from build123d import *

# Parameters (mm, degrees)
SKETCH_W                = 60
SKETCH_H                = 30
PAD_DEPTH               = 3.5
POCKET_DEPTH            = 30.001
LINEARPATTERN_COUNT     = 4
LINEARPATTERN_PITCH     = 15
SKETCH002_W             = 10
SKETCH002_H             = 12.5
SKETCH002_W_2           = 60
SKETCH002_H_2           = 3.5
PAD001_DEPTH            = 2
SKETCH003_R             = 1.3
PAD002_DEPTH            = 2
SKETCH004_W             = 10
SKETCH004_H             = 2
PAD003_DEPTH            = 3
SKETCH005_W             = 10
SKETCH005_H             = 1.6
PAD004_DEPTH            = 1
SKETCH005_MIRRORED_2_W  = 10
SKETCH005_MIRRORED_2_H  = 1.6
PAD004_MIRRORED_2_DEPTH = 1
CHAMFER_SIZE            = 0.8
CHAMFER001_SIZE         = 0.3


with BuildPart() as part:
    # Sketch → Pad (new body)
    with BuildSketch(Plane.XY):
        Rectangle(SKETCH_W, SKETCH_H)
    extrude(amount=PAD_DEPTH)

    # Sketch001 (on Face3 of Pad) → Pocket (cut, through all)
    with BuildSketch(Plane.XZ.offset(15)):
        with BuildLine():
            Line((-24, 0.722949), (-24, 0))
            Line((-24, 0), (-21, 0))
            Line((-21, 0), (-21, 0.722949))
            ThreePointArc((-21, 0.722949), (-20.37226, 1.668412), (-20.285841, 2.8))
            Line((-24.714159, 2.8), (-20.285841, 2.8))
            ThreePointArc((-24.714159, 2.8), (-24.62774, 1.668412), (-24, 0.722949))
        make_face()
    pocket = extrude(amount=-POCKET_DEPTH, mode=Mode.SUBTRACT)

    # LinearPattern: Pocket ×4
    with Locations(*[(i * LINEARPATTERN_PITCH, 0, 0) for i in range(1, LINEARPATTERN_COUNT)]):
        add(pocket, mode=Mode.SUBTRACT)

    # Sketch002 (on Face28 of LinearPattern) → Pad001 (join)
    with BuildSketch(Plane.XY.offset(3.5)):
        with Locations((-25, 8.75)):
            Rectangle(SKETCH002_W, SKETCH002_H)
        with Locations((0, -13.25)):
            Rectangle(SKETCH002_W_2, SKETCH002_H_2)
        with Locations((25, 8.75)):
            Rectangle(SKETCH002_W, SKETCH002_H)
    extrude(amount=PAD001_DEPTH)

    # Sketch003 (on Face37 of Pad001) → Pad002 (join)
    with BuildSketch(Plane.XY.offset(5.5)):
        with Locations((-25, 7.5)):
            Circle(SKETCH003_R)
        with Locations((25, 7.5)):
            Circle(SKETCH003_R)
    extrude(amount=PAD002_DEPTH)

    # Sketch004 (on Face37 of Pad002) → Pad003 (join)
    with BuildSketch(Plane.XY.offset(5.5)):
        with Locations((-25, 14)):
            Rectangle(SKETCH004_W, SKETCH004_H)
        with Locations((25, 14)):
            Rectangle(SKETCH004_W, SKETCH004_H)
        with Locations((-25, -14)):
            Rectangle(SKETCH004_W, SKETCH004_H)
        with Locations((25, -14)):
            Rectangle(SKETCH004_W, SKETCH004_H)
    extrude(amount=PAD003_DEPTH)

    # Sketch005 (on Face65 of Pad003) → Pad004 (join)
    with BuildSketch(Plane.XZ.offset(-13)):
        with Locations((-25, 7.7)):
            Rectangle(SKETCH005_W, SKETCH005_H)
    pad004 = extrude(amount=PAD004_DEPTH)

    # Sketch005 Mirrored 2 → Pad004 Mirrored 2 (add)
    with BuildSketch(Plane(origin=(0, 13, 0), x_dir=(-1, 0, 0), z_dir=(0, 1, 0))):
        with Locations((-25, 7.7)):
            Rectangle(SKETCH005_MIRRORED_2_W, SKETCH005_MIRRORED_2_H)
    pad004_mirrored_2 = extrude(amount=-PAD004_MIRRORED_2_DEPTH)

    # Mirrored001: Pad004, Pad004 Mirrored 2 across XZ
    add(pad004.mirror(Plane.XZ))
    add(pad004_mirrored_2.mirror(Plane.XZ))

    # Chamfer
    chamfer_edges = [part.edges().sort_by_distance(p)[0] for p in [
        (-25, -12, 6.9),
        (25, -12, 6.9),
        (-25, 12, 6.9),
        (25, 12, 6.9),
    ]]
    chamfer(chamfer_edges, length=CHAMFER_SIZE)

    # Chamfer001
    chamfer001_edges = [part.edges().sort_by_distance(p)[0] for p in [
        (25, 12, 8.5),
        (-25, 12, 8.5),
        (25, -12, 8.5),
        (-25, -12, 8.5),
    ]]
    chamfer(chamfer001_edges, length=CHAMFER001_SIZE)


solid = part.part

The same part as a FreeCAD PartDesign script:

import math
import FreeCAD as App
import Part
import Sketcher

V = App.Vector
Q = App.Units.Quantity


def edges_at(feature, points):
    """Names of the edges that pass closest to the given points."""
    edges = feature.Shape.Edges
    near = lambda p: min(range(len(edges)), key=lambda i: edges[i].distToShape(Part.Vertex(*p))[0])
    return sorted({f"Edge{near(p) + 1}" for p in points})

doc = App.newDocument("Part")
body = doc.addObject("PartDesign::Body", "Body")

# Sketch on XY plane
sketch1 = body.newObject("Sketcher::SketchObject", "Sketch")
sketch1.AttachmentSupport = (doc.getObject("XY_Plane"), [""])
sketch1.MapMode = "FlatFace"
sketch1.addGeometry(Part.LineSegment(V(-30, 15, 0), V(-30, -15, 0)), False)
sketch1.addGeometry(Part.LineSegment(V(-30, -15, 0), V(30, -15, 0)), False)
sketch1.addGeometry(Part.LineSegment(V(30, -15, 0), V(30, 15, 0)), False)
sketch1.addGeometry(Part.LineSegment(V(30, 15, 0), V(-30, 15, 0)), False)
sketch1.addConstraint(Sketcher.Constraint("Coincident", 0, 2, 1, 1))
sketch1.addConstraint(Sketcher.Constraint("Coincident", 1, 2, 2, 1))
sketch1.addConstraint(Sketcher.Constraint("Coincident", 2, 2, 3, 1))
sketch1.addConstraint(Sketcher.Constraint("Coincident", 3, 2, 0, 1))
sketch1.addConstraint(Sketcher.Constraint("Vertical", 0))
sketch1.addConstraint(Sketcher.Constraint("Horizontal", 1))
sketch1.addConstraint(Sketcher.Constraint("Vertical", 2))
sketch1.addConstraint(Sketcher.Constraint("Horizontal", 3))
sketch1.addConstraint(Sketcher.Constraint("Symmetric", 0, 2, 2, 2, -1, 1))
sketch1.addConstraint(Sketcher.Constraint("DistanceX", 1, 1, 1, 2, Q("60 mm")))
sketch1.addConstraint(Sketcher.Constraint("DistanceY", 0, 2, 0, 1, Q("30 mm")))
pad1 = body.newObject("PartDesign::Pad", "Pad")
pad1.Profile = sketch1
pad1.Length = 3.5

# Sketch on XZ plane
sketch2 = body.newObject("Sketcher::SketchObject", "Sketch001")
sketch2.AttachmentSupport = (doc.getObject("XZ_Plane"), [""])
sketch2.MapMode = "FlatFace"
sketch2.AttachmentOffset = App.Placement(V(0, 0, 15), App.Rotation())
sketch2.addGeometry(Part.LineSegment(V(-24, 0.7, 0), V(-24, 0, 0)), False)
sketch2.addGeometry(Part.LineSegment(V(-24, 0, 0), V(-21, 0, 0)), False)
sketch2.addGeometry(Part.LineSegment(V(-21, 0, 0), V(-21, 0.7, 0)), False)
sketch2.addGeometry(Part.ArcOfCircle(Part.Circle(V(-22.5, 2.4, 0), V(0, 0, 1), 2.3), math.radians(-48), math.radians(10)), False)
sketch2.addGeometry(Part.LineSegment(V(-20.3, 2.8, 0), V(-24.7, 2.8, 0)), False)
sketch2.addGeometry(Part.ArcOfCircle(Part.Circle(V(-22.5, 2.4, 0), V(0, 0, 1), 2.3), math.radians(170), math.radians(228)), False)
sketch2.addConstraint(Sketcher.Constraint("Coincident", 0, 2, 1, 1))
sketch2.addConstraint(Sketcher.Constraint("Coincident", 1, 2, 2, 1))
sketch2.addConstraint(Sketcher.Constraint("Coincident", 2, 2, 3, 1))
sketch2.addConstraint(Sketcher.Constraint("Coincident", 3, 2, 4, 1))
sketch2.addConstraint(Sketcher.Constraint("Coincident", 4, 2, 5, 1))
sketch2.addConstraint(Sketcher.Constraint("Coincident", 5, 2, 0, 1))
sketch2.addConstraint(Sketcher.Constraint("Vertical", 0))
sketch2.addConstraint(Sketcher.Constraint("Horizontal", 1))
sketch2.addConstraint(Sketcher.Constraint("Vertical", 2))
sketch2.addConstraint(Sketcher.Constraint("Horizontal", 4))
sketch2.addConstraint(Sketcher.Constraint("Coincident", 5, 3, 3, 3))
sketch2.addConstraint(Sketcher.Constraint("Equal", 3, 5))
sketch2.addConstraint(Sketcher.Constraint("PointOnObject", 0, 2, -1))
sketch2.addConstraint(Sketcher.Constraint("Horizontal", 2, 2, 5, 2))
sketch2.addConstraint(Sketcher.Constraint("DistanceX", 1, 1, 1, 2, Q("3 mm")))
sketch2.addConstraint(Sketcher.Constraint("DistanceX", 0, 2, -1, 1, Q("24 mm")))
sketch2.addConstraint(Sketcher.Constraint("DistanceY", -1, 1, 3, 3, Q("2.400001 mm")))
sketch2.addConstraint(Sketcher.Constraint("DistanceY", -1, 1, 3, 2, Q("2.8 mm")))
sketch2.addConstraint(Sketcher.Constraint("Radius", 3, Q("2.250002 mm")))
pocket1 = body.newObject("PartDesign::Pocket", "Pocket")
pocket1.Profile = sketch2
pocket1.Type = "ThroughAll"
doc.recompute()

linearpattern = body.newObject("PartDesign::LinearPattern", "LinearPattern")
linearpattern.Originals = [pocket1]
linearpattern.Direction = (doc.getObject("X_Axis"), [""])
linearpattern.Mode = "offset"
linearpattern.Offset = 15
linearpattern.Occurrences = 4
body.Tip = linearpattern

# Sketch on XY plane
sketch3 = body.newObject("Sketcher::SketchObject", "Sketch002")
sketch3.AttachmentSupport = (doc.getObject("XY_Plane"), [""])
sketch3.MapMode = "FlatFace"
sketch3.AttachmentOffset = App.Placement(V(0, 0, 3.5), App.Rotation())
sketch3.addGeometry(Part.LineSegment(V(-30, 15, 0), V(-30, 2.5, 0)), False)
sketch3.addGeometry(Part.LineSegment(V(-30, 2.5, 0), V(-20, 2.5, 0)), False)
sketch3.addGeometry(Part.LineSegment(V(-20, 2.5, 0), V(-20, 15, 0)), False)
sketch3.addGeometry(Part.LineSegment(V(-20, 15, 0), V(-30, 15, 0)), False)
sketch3.addGeometry(Part.LineSegment(V(-30, -11.5, 0), V(-30, -15, 0)), False)
sketch3.addGeometry(Part.LineSegment(V(-30, -15, 0), V(30, -15, 0)), False)
sketch3.addGeometry(Part.LineSegment(V(30, -15, 0), V(30, -11.5, 0)), False)
sketch3.addGeometry(Part.LineSegment(V(30, -11.5, 0), V(-30, -11.5, 0)), False)
sketch3.addGeometry(Part.LineSegment(V(20, 15, 0), V(20, 2.5, 0)), False)
sketch3.addGeometry(Part.LineSegment(V(20, 2.5, 0), V(30, 2.5, 0)), False)
sketch3.addGeometry(Part.LineSegment(V(30, 2.5, 0), V(30, 15, 0)), False)
sketch3.addGeometry(Part.LineSegment(V(30, 15, 0), V(20, 15, 0)), False)
sketch3.addConstraint(Sketcher.Constraint("Coincident", 0, 2, 1, 1))
sketch3.addConstraint(Sketcher.Constraint("Coincident", 1, 2, 2, 1))
sketch3.addConstraint(Sketcher.Constraint("Coincident", 2, 2, 3, 1))
sketch3.addConstraint(Sketcher.Constraint("Coincident", 3, 2, 0, 1))
sketch3.addConstraint(Sketcher.Constraint("Coincident", 4, 2, 5, 1))
sketch3.addConstraint(Sketcher.Constraint("Coincident", 5, 2, 6, 1))
sketch3.addConstraint(Sketcher.Constraint("Coincident", 6, 2, 7, 1))
sketch3.addConstraint(Sketcher.Constraint("Coincident", 7, 2, 4, 1))
sketch3.addConstraint(Sketcher.Constraint("Coincident", 8, 2, 9, 1))
sketch3.addConstraint(Sketcher.Constraint("Coincident", 9, 2, 10, 1))
sketch3.addConstraint(Sketcher.Constraint("Coincident", 10, 2, 11, 1))
sketch3.addConstraint(Sketcher.Constraint("Coincident", 11, 2, 8, 1))
sketch3.addConstraint(Sketcher.Constraint("Vertical", 0))
sketch3.addConstraint(Sketcher.Constraint("Horizontal", 1))
sketch3.addConstraint(Sketcher.Constraint("Vertical", 2))
sketch3.addConstraint(Sketcher.Constraint("Horizontal", 3))
sketch3.addConstraint(Sketcher.Constraint("Vertical", 4))
sketch3.addConstraint(Sketcher.Constraint("Horizontal", 5))
sketch3.addConstraint(Sketcher.Constraint("Vertical", 6))
sketch3.addConstraint(Sketcher.Constraint("Horizontal", 7))
sketch3.addConstraint(Sketcher.Constraint("Vertical", 8))
sketch3.addConstraint(Sketcher.Constraint("Horizontal", 9))
sketch3.addConstraint(Sketcher.Constraint("Vertical", 10))
sketch3.addConstraint(Sketcher.Constraint("Horizontal", 11))
sketch3.addConstraint(Sketcher.Constraint("Symmetric", 3, 2, 5, 2, -1, 1))
sketch3.addConstraint(Sketcher.Constraint("Symmetric", 4, 2, 10, 2, -1, 1))
sketch3.addConstraint(Sketcher.Constraint("Symmetric", 1, 2, 8, 2, -2))
sketch3.addConstraint(Sketcher.Constraint("Vertical", 3, 2, 4, 2))
sketch3.addConstraint(Sketcher.Constraint("DistanceX", 1, 1, 1, 2, Q("10 mm")))
sketch3.addConstraint(Sketcher.Constraint("DistanceX", 5, 1, 5, 2, Q("60 mm")))
sketch3.addConstraint(Sketcher.Constraint("DistanceY", 0, 2, 0, 1, Q("12.5 mm")))
sketch3.addConstraint(Sketcher.Constraint("DistanceY", 4, 2, 4, 1, Q("3.5 mm")))
sketch3.addConstraint(Sketcher.Constraint("DistanceY", -1, 1, 2, 2, Q("15 mm")))
pad2 = body.newObject("PartDesign::Pad", "Pad001")
pad2.Profile = sketch3
pad2.Length = 2

# Sketch on XY plane
sketch4 = body.newObject("Sketcher::SketchObject", "Sketch003")
sketch4.AttachmentSupport = (doc.getObject("XY_Plane"), [""])
sketch4.MapMode = "FlatFace"
sketch4.AttachmentOffset = App.Placement(V(0, 0, 5.5), App.Rotation())
sketch4.addGeometry(Part.Circle(V(-25, 7.5, 0), V(0, 0, 1), 1.3), False)
sketch4.addGeometry(Part.Circle(V(25, 7.5, 0), V(0, 0, 1), 1.3), False)
sketch4.addConstraint(Sketcher.Constraint("Equal", 0, 1))
sketch4.addConstraint(Sketcher.Constraint("Symmetric", 0, 3, 1, 3, -2))
sketch4.addConstraint(Sketcher.Constraint("Diameter", 0, Q("2.6 mm")))
sketch4.addConstraint(Sketcher.Constraint("DistanceX", 0, 3, -1, 1, Q("25 mm")))
sketch4.addConstraint(Sketcher.Constraint("DistanceY", -1, 1, 0, 3, Q("7.5 mm")))
pad3 = body.newObject("PartDesign::Pad", "Pad002")
pad3.Profile = sketch4
pad3.Length = 2

# Sketch on XY plane
sketch5 = body.newObject("Sketcher::SketchObject", "Sketch004")
sketch5.AttachmentSupport = (doc.getObject("XY_Plane"), [""])
sketch5.MapMode = "FlatFace"
sketch5.AttachmentOffset = App.Placement(V(0, 0, 5.5), App.Rotation())
sketch5.addGeometry(Part.LineSegment(V(-30, 15, 0), V(-30, 13, 0)), False)
sketch5.addGeometry(Part.LineSegment(V(-30, 13, 0), V(-20, 13, 0)), False)
sketch5.addGeometry(Part.LineSegment(V(-20, 13, 0), V(-20, 15, 0)), False)
sketch5.addGeometry(Part.LineSegment(V(-20, 15, 0), V(-30, 15, 0)), False)
sketch5.addGeometry(Part.LineSegment(V(20, 15, 0), V(20, 13, 0)), False)
sketch5.addGeometry(Part.LineSegment(V(20, 13, 0), V(30, 13, 0)), False)
sketch5.addGeometry(Part.LineSegment(V(30, 13, 0), V(30, 15, 0)), False)
sketch5.addGeometry(Part.LineSegment(V(30, 15, 0), V(20, 15, 0)), False)
sketch5.addGeometry(Part.LineSegment(V(-30, -13, 0), V(-30, -15, 0)), False)
sketch5.addGeometry(Part.LineSegment(V(-30, -15, 0), V(-20, -15, 0)), False)
sketch5.addGeometry(Part.LineSegment(V(-20, -15, 0), V(-20, -13, 0)), False)
sketch5.addGeometry(Part.LineSegment(V(-20, -13, 0), V(-30, -13, 0)), False)
sketch5.addGeometry(Part.LineSegment(V(20, -13, 0), V(20, -15, 0)), False)
sketch5.addGeometry(Part.LineSegment(V(20, -15, 0), V(30, -15, 0)), False)
sketch5.addGeometry(Part.LineSegment(V(30, -15, 0), V(30, -13, 0)), False)
sketch5.addGeometry(Part.LineSegment(V(30, -13, 0), V(20, -13, 0)), False)
sketch5.addConstraint(Sketcher.Constraint("Coincident", 0, 2, 1, 1))
sketch5.addConstraint(Sketcher.Constraint("Coincident", 1, 2, 2, 1))
sketch5.addConstraint(Sketcher.Constraint("Coincident", 2, 2, 3, 1))
sketch5.addConstraint(Sketcher.Constraint("Coincident", 3, 2, 0, 1))
sketch5.addConstraint(Sketcher.Constraint("Coincident", 4, 2, 5, 1))
sketch5.addConstraint(Sketcher.Constraint("Coincident", 5, 2, 6, 1))
sketch5.addConstraint(Sketcher.Constraint("Coincident", 6, 2, 7, 1))
sketch5.addConstraint(Sketcher.Constraint("Coincident", 7, 2, 4, 1))
sketch5.addConstraint(Sketcher.Constraint("Coincident", 8, 2, 9, 1))
sketch5.addConstraint(Sketcher.Constraint("Coincident", 9, 2, 10, 1))
sketch5.addConstraint(Sketcher.Constraint("Coincident", 10, 2, 11, 1))
sketch5.addConstraint(Sketcher.Constraint("Coincident", 11, 2, 8, 1))
sketch5.addConstraint(Sketcher.Constraint("Coincident", 12, 2, 13, 1))
sketch5.addConstraint(Sketcher.Constraint("Coincident", 13, 2, 14, 1))
sketch5.addConstraint(Sketcher.Constraint("Coincident", 14, 2, 15, 1))
sketch5.addConstraint(Sketcher.Constraint("Coincident", 15, 2, 12, 1))
sketch5.addConstraint(Sketcher.Constraint("Vertical", 0))
sketch5.addConstraint(Sketcher.Constraint("Horizontal", 1))
sketch5.addConstraint(Sketcher.Constraint("Vertical", 2))
sketch5.addConstraint(Sketcher.Constraint("Horizontal", 3))
sketch5.addConstraint(Sketcher.Constraint("Vertical", 4))
sketch5.addConstraint(Sketcher.Constraint("Horizontal", 5))
sketch5.addConstraint(Sketcher.Constraint("Vertical", 6))
sketch5.addConstraint(Sketcher.Constraint("Horizontal", 7))
sketch5.addConstraint(Sketcher.Constraint("Vertical", 8))
sketch5.addConstraint(Sketcher.Constraint("Horizontal", 9))
sketch5.addConstraint(Sketcher.Constraint("Vertical", 10))
sketch5.addConstraint(Sketcher.Constraint("Horizontal", 11))
sketch5.addConstraint(Sketcher.Constraint("Vertical", 12))
sketch5.addConstraint(Sketcher.Constraint("Horizontal", 13))
sketch5.addConstraint(Sketcher.Constraint("Vertical", 14))
sketch5.addConstraint(Sketcher.Constraint("Horizontal", 15))
sketch5.addConstraint(Sketcher.Constraint("Symmetric", 6, 2, 8, 2, -1, 1))
sketch5.addConstraint(Sketcher.Constraint("Symmetric", 4, 2, 10, 2, -1, 1))
sketch5.addConstraint(Sketcher.Constraint("Symmetric", 2, 2, 12, 2, -1, 1))
sketch5.addConstraint(Sketcher.Constraint("Symmetric", 0, 2, 14, 2, -1, 1))
sketch5.addConstraint(Sketcher.Constraint("Symmetric", 1, 2, 4, 2, -2))
sketch5.addConstraint(Sketcher.Constraint("Symmetric", 3, 2, 6, 2, -2))
sketch5.addConstraint(Sketcher.Constraint("DistanceX", 1, 1, 1, 2, Q("10 mm")))
sketch5.addConstraint(Sketcher.Constraint("DistanceY", 0, 2, 0, 1, Q("2 mm")))
sketch5.addConstraint(Sketcher.Constraint("DistanceX", 0, 2, -1, 1, Q("30 mm")))
sketch5.addConstraint(Sketcher.Constraint("DistanceY", -1, 1, 0, 2, Q("13 mm")))
pad4 = body.newObject("PartDesign::Pad", "Pad003")
pad4.Profile = sketch5
pad4.Length = 3

# Sketch on XZ plane
sketch6 = body.newObject("Sketcher::SketchObject", "Sketch005")
sketch6.AttachmentSupport = (doc.getObject("XZ_Plane"), [""])
sketch6.MapMode = "FlatFace"
sketch6.AttachmentOffset = App.Placement(V(0, 0, -13), App.Rotation())
sketch6.addGeometry(Part.LineSegment(V(-30, 8.5, 0), V(-30, 6.9, 0)), False)
sketch6.addGeometry(Part.LineSegment(V(-30, 6.9, 0), V(-20, 6.9, 0)), False)
sketch6.addGeometry(Part.LineSegment(V(-20, 6.9, 0), V(-20, 8.5, 0)), False)
sketch6.addGeometry(Part.LineSegment(V(-20, 8.5, 0), V(-30, 8.5, 0)), False)
sketch6.addConstraint(Sketcher.Constraint("Coincident", 0, 2, 1, 1))
sketch6.addConstraint(Sketcher.Constraint("Coincident", 1, 2, 2, 1))
sketch6.addConstraint(Sketcher.Constraint("Coincident", 2, 2, 3, 1))
sketch6.addConstraint(Sketcher.Constraint("Coincident", 3, 2, 0, 1))
sketch6.addConstraint(Sketcher.Constraint("Vertical", 0))
sketch6.addConstraint(Sketcher.Constraint("Horizontal", 1))
sketch6.addConstraint(Sketcher.Constraint("Vertical", 2))
sketch6.addConstraint(Sketcher.Constraint("Horizontal", 3))
sketch6.addConstraint(Sketcher.Constraint("DistanceX", 1, 1, 1, 2, Q("10 mm")))
sketch6.addConstraint(Sketcher.Constraint("DistanceY", 0, 2, 0, 1, Q("1.6 mm")))
sketch6.addConstraint(Sketcher.Constraint("DistanceX", 0, 2, -1, 1, Q("30 mm")))
sketch6.addConstraint(Sketcher.Constraint("DistanceY", -1, 1, 0, 2, Q("6.9 mm")))
pad5 = body.newObject("PartDesign::Pad", "Pad004")
pad5.Profile = sketch6
pad5.Length = 1

# Sketch on XZ plane
sketch7 = body.newObject("Sketcher::SketchObject", "Sketch006")
sketch7.AttachmentSupport = (doc.getObject("XZ_Plane"), [""])
sketch7.MapMode = "FlatFace"
sketch7.AttachmentOffset = App.Placement(V(0, 0, -13), App.Rotation())
sketch7.addGeometry(Part.LineSegment(V(30, 8.5, 0), V(30, 6.9, 0)), False)
sketch7.addGeometry(Part.LineSegment(V(30, 6.9, 0), V(20, 6.9, 0)), False)
sketch7.addGeometry(Part.LineSegment(V(20, 6.9, 0), V(20, 8.5, 0)), False)
sketch7.addGeometry(Part.LineSegment(V(20, 8.5, 0), V(30, 8.5, 0)), False)
sketch7.addConstraint(Sketcher.Constraint("Coincident", 0, 2, 1, 1))
sketch7.addConstraint(Sketcher.Constraint("Coincident", 1, 2, 2, 1))
sketch7.addConstraint(Sketcher.Constraint("Coincident", 2, 2, 3, 1))
sketch7.addConstraint(Sketcher.Constraint("Coincident", 3, 2, 0, 1))
sketch7.addConstraint(Sketcher.Constraint("Vertical", 0))
sketch7.addConstraint(Sketcher.Constraint("Horizontal", 1))
sketch7.addConstraint(Sketcher.Constraint("Vertical", 2))
sketch7.addConstraint(Sketcher.Constraint("Horizontal", 3))
sketch7.addConstraint(Sketcher.Constraint("DistanceX", 1, 2, 1, 1, Q("10 mm")))
sketch7.addConstraint(Sketcher.Constraint("DistanceY", 0, 2, 0, 1, Q("1.6 mm")))
sketch7.addConstraint(Sketcher.Constraint("DistanceX", -1, 1, 0, 2, Q("30 mm")))
sketch7.addConstraint(Sketcher.Constraint("DistanceY", -1, 1, 0, 2, Q("6.9 mm")))
pad6 = body.newObject("PartDesign::Pad", "Pad005")
pad6.Profile = sketch7
pad6.Length = 1
doc.recompute()

mirrored = body.newObject("PartDesign::Mirrored", "Mirrored")
mirrored.Originals = [pad5, pad6]
mirrored.MirrorPlane = (doc.getObject("XZ_Plane"), [""])
body.Tip = mirrored
doc.recompute()

chamfer = body.newObject("PartDesign::Chamfer", "Chamfer")
chamfer.Base = (mirrored, edges_at(mirrored, [
    (-25, -12, 6.9),
    (25, -12, 6.9),
    (-25, 12, 6.9),
    (25, 12, 6.9),
]))
chamfer.Size = 0.8
doc.recompute()

chamfer2 = body.newObject("PartDesign::Chamfer", "Chamfer001")
chamfer2.Base = (chamfer, edges_at(chamfer, [
    (25, 12, 8.5),
    (-25, 12, 8.5),
    (25, -12, 8.5),
    (-25, -12, 8.5),
]))
chamfer2.Size = 0.3

doc.recompute()
